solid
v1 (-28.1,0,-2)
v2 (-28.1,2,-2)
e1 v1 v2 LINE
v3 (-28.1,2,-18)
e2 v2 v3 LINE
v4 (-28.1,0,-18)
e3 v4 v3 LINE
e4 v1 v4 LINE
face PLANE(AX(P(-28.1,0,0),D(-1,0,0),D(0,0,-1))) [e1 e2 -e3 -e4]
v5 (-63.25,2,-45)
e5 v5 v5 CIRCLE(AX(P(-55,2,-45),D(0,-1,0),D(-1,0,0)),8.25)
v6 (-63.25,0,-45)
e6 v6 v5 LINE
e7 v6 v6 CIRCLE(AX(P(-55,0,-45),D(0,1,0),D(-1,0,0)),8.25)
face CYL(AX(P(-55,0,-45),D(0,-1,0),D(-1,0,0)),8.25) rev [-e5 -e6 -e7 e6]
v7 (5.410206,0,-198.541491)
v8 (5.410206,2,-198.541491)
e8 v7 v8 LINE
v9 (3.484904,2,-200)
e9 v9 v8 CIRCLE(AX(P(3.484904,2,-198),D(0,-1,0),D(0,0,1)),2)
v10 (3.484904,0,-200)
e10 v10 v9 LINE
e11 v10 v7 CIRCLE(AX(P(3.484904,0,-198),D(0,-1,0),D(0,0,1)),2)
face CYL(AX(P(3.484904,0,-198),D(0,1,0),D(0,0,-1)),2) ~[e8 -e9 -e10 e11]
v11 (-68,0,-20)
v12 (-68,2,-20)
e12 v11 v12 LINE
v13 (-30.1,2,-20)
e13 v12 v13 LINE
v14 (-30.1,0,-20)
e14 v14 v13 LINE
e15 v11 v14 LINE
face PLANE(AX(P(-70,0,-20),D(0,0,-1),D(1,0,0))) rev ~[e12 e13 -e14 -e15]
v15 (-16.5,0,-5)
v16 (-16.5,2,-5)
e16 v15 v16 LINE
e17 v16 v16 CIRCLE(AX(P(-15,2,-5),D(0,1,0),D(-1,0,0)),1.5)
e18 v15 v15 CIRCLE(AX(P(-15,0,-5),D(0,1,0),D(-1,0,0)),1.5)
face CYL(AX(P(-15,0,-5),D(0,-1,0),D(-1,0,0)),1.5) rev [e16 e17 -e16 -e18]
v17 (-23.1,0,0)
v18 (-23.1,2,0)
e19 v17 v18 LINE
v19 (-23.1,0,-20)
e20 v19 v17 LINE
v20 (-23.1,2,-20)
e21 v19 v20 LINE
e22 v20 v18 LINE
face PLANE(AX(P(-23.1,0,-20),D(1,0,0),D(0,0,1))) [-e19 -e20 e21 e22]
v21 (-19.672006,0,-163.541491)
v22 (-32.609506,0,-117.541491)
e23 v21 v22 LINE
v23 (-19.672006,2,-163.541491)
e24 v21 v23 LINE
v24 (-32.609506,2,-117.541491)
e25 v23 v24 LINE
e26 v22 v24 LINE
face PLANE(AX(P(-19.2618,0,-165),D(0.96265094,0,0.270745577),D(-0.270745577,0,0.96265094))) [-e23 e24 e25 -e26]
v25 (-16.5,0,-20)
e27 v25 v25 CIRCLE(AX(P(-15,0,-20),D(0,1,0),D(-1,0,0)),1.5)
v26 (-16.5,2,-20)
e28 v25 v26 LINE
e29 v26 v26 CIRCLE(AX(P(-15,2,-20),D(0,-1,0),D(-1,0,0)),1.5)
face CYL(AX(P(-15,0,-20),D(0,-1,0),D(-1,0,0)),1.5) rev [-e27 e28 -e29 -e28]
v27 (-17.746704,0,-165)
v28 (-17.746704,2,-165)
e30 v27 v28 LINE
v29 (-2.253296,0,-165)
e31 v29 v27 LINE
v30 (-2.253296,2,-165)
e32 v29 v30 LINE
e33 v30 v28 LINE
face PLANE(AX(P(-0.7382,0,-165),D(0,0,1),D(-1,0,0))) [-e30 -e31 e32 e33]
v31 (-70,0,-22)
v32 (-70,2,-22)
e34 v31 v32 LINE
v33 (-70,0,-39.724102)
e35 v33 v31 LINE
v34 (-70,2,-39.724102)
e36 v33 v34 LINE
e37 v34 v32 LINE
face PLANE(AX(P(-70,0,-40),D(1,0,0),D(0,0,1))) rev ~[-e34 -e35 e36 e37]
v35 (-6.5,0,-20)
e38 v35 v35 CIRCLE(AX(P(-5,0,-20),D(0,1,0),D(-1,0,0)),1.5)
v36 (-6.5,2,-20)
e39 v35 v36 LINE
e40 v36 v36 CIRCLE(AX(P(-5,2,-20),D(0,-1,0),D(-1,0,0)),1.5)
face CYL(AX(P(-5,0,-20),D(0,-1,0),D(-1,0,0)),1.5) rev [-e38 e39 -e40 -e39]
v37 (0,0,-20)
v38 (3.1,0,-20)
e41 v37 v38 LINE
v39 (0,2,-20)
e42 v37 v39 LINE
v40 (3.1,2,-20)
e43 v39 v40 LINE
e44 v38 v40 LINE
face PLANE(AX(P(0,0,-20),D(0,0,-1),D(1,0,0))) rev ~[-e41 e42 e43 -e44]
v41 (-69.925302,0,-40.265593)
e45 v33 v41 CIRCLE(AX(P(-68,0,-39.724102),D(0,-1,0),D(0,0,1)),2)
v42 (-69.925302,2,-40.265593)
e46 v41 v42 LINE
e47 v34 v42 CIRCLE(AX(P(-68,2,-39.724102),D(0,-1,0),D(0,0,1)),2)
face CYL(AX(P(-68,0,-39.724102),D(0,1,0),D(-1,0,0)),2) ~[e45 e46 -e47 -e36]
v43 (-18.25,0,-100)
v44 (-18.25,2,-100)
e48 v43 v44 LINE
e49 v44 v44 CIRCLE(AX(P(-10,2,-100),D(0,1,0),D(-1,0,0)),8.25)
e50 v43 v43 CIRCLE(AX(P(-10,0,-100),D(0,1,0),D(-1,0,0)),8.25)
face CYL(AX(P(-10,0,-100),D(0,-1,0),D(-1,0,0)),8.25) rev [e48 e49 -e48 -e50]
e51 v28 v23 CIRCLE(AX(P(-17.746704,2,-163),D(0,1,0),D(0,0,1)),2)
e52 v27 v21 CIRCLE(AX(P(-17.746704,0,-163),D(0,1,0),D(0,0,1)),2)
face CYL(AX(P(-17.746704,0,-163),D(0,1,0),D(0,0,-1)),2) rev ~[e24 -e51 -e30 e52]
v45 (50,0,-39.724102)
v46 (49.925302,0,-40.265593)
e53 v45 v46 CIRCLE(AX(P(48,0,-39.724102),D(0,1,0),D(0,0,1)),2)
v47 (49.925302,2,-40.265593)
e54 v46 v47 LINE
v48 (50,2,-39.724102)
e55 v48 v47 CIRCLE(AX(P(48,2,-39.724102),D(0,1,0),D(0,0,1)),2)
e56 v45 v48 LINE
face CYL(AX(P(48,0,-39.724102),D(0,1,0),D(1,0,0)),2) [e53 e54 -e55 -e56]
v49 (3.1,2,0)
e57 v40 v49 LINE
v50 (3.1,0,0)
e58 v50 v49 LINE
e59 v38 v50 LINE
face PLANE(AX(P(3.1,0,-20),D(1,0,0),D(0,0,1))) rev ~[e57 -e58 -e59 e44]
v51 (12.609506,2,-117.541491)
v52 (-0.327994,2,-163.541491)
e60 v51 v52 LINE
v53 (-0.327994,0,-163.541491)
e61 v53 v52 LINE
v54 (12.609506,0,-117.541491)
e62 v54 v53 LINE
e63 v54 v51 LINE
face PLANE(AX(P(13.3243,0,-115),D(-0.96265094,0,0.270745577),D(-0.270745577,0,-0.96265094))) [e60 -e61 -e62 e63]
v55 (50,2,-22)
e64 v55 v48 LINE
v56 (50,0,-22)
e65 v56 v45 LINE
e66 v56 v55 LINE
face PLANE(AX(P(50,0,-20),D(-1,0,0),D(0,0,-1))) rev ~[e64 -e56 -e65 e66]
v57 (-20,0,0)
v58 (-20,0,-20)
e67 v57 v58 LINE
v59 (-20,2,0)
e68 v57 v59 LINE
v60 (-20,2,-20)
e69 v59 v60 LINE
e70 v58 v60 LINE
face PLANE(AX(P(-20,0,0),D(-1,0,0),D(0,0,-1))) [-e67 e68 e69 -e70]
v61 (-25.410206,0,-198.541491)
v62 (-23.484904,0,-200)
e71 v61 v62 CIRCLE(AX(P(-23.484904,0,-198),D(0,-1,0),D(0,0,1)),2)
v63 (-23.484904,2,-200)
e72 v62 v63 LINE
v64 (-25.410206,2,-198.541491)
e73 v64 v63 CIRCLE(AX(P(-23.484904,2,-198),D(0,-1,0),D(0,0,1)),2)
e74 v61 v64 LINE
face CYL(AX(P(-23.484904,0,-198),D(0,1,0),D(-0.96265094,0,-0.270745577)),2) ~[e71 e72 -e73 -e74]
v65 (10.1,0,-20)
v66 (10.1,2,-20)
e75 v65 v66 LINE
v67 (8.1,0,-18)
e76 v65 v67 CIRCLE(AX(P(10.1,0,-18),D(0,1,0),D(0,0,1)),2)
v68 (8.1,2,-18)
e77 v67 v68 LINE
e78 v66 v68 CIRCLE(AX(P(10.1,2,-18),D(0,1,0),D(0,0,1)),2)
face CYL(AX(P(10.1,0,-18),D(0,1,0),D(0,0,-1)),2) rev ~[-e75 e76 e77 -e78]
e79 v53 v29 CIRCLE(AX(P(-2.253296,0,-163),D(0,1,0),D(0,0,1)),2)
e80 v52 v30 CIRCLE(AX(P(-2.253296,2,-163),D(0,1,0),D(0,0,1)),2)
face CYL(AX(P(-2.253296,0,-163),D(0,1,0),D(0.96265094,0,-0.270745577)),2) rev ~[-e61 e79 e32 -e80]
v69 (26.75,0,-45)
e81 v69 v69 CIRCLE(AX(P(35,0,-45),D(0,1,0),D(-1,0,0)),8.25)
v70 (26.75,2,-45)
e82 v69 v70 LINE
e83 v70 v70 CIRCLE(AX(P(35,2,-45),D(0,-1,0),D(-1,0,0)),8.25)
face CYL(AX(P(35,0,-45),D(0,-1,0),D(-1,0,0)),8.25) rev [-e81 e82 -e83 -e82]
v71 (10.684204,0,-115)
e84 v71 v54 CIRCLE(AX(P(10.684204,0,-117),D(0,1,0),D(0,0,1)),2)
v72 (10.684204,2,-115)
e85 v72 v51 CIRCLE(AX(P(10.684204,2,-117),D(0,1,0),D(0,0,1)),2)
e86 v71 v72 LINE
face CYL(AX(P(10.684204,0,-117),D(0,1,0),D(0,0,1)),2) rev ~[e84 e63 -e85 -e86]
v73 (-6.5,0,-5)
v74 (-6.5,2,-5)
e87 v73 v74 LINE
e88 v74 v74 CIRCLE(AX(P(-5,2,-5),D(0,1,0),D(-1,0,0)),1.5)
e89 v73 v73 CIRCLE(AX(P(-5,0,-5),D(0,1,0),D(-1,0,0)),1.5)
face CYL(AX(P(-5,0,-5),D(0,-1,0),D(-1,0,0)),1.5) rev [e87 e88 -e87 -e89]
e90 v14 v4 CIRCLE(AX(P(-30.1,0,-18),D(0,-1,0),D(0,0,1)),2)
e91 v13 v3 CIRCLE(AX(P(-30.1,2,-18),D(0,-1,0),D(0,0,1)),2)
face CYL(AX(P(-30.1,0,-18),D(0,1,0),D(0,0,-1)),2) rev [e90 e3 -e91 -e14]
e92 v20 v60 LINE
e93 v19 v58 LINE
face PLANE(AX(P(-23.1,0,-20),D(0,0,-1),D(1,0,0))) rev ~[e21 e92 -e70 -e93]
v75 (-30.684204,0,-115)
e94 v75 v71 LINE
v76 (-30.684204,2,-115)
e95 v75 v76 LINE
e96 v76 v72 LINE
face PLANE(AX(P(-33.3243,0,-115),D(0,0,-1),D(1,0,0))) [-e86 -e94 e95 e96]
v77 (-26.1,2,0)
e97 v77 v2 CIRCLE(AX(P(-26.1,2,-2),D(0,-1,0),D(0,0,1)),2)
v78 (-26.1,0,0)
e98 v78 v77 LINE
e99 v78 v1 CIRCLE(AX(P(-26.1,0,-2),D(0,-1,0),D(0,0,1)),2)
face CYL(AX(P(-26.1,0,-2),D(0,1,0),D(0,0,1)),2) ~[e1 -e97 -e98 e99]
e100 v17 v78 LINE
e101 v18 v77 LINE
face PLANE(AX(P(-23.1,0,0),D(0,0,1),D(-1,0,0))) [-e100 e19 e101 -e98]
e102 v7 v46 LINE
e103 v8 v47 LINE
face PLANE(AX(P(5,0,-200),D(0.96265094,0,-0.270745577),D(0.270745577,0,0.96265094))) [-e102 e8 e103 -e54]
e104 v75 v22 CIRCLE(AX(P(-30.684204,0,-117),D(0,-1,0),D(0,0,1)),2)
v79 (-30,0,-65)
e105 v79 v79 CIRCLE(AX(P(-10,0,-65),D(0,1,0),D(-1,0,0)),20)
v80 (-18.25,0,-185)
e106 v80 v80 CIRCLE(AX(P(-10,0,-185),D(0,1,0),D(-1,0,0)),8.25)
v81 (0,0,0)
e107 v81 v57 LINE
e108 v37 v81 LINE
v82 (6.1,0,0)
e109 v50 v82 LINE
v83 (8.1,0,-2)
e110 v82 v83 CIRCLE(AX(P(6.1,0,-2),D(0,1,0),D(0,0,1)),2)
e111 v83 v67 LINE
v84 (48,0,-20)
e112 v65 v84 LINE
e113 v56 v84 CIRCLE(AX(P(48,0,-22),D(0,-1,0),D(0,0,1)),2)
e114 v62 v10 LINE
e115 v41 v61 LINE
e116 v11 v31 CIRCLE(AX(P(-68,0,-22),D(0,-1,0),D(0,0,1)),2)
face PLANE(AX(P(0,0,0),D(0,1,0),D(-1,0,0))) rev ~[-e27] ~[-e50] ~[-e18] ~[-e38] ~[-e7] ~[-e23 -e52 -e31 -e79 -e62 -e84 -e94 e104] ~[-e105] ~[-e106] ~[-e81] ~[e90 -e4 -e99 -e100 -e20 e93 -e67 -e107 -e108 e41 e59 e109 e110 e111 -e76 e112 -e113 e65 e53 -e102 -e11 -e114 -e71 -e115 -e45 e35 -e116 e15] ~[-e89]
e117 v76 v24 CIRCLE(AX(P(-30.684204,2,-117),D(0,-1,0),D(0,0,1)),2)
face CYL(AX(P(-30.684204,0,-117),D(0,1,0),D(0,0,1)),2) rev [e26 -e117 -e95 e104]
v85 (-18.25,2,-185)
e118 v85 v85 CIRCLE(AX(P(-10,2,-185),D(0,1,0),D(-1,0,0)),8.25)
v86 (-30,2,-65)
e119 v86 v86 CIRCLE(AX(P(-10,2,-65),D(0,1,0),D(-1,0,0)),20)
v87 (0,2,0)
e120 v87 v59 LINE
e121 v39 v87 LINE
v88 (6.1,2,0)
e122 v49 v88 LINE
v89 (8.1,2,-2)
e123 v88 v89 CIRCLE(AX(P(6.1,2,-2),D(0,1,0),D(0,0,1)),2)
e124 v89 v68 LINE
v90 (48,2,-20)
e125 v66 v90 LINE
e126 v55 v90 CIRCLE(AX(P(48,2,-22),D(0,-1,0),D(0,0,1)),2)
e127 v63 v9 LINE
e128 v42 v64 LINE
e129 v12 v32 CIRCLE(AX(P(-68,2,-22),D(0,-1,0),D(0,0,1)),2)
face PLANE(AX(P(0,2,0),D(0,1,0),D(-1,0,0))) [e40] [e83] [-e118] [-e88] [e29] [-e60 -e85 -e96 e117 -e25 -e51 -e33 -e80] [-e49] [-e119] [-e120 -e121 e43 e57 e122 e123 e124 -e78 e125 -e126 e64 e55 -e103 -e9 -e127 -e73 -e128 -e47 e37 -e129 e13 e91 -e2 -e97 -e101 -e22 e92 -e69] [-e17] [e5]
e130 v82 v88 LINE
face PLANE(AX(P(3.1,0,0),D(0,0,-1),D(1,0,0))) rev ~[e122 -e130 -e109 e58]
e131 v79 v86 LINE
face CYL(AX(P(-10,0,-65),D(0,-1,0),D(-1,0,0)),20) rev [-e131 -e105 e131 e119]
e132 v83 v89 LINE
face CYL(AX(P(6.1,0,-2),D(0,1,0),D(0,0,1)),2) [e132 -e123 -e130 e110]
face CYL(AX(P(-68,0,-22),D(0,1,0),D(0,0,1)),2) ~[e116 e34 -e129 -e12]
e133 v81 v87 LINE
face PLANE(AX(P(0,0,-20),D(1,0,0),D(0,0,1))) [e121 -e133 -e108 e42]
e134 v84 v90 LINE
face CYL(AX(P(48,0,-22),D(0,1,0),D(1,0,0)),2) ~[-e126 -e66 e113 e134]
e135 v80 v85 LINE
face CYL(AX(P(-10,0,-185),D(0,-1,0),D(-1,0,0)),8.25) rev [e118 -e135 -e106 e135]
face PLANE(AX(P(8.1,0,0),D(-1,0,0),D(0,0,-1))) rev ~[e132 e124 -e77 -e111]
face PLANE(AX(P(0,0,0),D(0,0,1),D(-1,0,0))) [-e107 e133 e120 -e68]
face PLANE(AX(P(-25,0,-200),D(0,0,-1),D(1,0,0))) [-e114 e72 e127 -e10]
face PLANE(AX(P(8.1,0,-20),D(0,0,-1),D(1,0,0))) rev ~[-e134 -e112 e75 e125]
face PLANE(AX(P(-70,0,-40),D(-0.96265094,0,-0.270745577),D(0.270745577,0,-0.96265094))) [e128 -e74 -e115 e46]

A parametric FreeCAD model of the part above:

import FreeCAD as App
import Part
import Sketcher


def edges_at(feature, points):
    """Names of the edges that pass closest to the given points."""
    edges = feature.Shape.Edges
    near = lambda p: min(range(len(edges)), key=lambda i: edges[i].distToShape(Part.Vertex(*p))[0])
    return sorted({f"Edge{near(p) + 1}" for p in points})

doc = App.newDocument("Part")
body = doc.addObject("PartDesign::Body", "Body")

# Sketch on XZ plane
sketch1 = body.newObject("Sketcher::SketchObject", "Sketch")
sketch1.AttachmentSupport = (doc.getObject("XZ_Plane"), [""])
sketch1.MapMode = "FlatFace"
sketch1.addGeometry([
    Part.LineSegment(App.Vector(-20, 0, 0), App.Vector(0, 0, 0)),  # 0
    Part.LineSegment(App.Vector(0, 0, 0), App.Vector(0, -20, 0)),  # 1
    Part.LineSegment(App.Vector(0, -20, 0), App.Vector(3.1, -20, 0)),  # 2
    Part.LineSegment(App.Vector(3.1, -20, 0), App.Vector(3.1, 0, 0)),  # 3
    Part.LineSegment(App.Vector(3.1, 0, 0), App.Vector(8.1, 0, 0)),  # 4
    Part.LineSegment(App.Vector(8.1, 0, 0), App.Vector(8.1, -20, 0)),  # 5
    Part.LineSegment(App.Vector(8.1, -20, 0), App.Vector(50, -20, 0)),  # 6
    Part.LineSegment(App.Vector(50, -20, 0), App.Vector(50, -40, 0)),  # 7
    Part.LineSegment(App.Vector(50, -40, 0), App.Vector(5, -200, 0)),  # 8
    Part.LineSegment(App.Vector(5, -200, 0), App.Vector(-25, -200, 0)),  # 9
    Part.LineSegment(App.Vector(-25, -200, 0), App.Vector(-70, -40, 0)),  # 10
    Part.LineSegment(App.Vector(-70, -40, 0), App.Vector(-70, -20, 0)),  # 11
    Part.LineSegment(App.Vector(-70, -20, 0), App.Vector(-28.1, -20, 0)),  # 12
    Part.LineSegment(App.Vector(-28.1, -20, 0), App.Vector(-28.1, 0, 0)),  # 13
    Part.LineSegment(App.Vector(-28.1, 0, 0), App.Vector(-23.1, 0, 0)),  # 14
    Part.LineSegment(App.Vector(-23.1, 0, 0), App.Vector(-23.1, -20, 0)),  # 15
    Part.LineSegment(App.Vector(-23.1, -20, 0), App.Vector(-20, -20, 0)),  # 16
    Part.LineSegment(App.Vector(-20, -20, 0), App.Vector(-20, 0, 0)),  # 17
    Part.Circle(App.Vector(-15, -20, 0), App.Vector(0, 0, 1), 1.5),  # 18
    Part.Circle(App.Vector(-5, -20, 0), App.Vector(0, 0, 1), 1.5),  # 19
    Part.Circle(App.Vector(-5, -5, 0), App.Vector(0, 0, 1), 1.5),  # 20
    Part.Circle(App.Vector(-15, -5, 0), App.Vector(0, 0, 1), 1.5),  # 21
    Part.Circle(App.Vector(-55, -45, 0), App.Vector(0, 0, 1), 8.25),  # 22
    Part.Circle(App.Vector(35, -45, 0), App.Vector(0, 0, 1), 8.25),  # 23
    Part.LineSegment(App.Vector(-33.3243, -115, 0), App.Vector(-19.2618, -165, 0)),  # 24
    Part.LineSegment(App.Vector(-19.2618, -165, 0), App.Vector(-0.7382, -165, 0)),  # 25
    Part.LineSegment(App.Vector(-0.7382, -165, 0), App.Vector(13.3243, -115, 0)),  # 26
    Part.LineSegment(App.Vector(13.3243, -115, 0), App.Vector(-33.3243, -115, 0)),  # 27
    Part.Circle(App.Vector(-10, -100, 0), App.Vector(0, 0, 1), 8.25),  # 28
    Part.Circle(App.Vector(-10, -65, 0), App.Vector(0, 0, 1), 20),  # 29
    Part.Circle(App.Vector(-10, -185, 0), App.Vector(0, 0, 1), 8.25),  # 30
], False)
sketch1.addConstraint([
    Sketcher.Constraint("Coincident", 0, 2, 1, 1),
    Sketcher.Constraint("Coincident", 1, 2, 2, 1),
    Sketcher.Constraint("Coincident", 2, 2, 3, 1),
    Sketcher.Constraint("Coincident", 3, 2, 4, 1),
    Sketcher.Constraint("Coincident", 4, 2, 5, 1),
    Sketcher.Constraint("Coincident", 5, 2, 6, 1),
    Sketcher.Constraint("Coincident", 6, 2, 7, 1),
    Sketcher.Constraint("Coincident", 7, 2, 8, 1),
    Sketcher.Constraint("Coincident", 8, 2, 9, 1),
    Sketcher.Constraint("Coincident", 9, 2, 10, 1),
    Sketcher.Constraint("Coincident", 10, 2, 11, 1),
    Sketcher.Constraint("Coincident", 11, 2, 12, 1),
    Sketcher.Constraint("Coincident", 12, 2, 13, 1),
    Sketcher.Constraint("Coincident", 13, 2, 14, 1),
    Sketcher.Constraint("Coincident", 14, 2, 15, 1),
    Sketcher.Constraint("Coincident", 15, 2, 16, 1),
    Sketcher.Constraint("Coincident", 16, 2, 17, 1),
    Sketcher.Constraint("Coincident", 17, 2, 0, 1),
    Sketcher.Constraint("Coincident", 24, 2, 25, 1),
    Sketcher.Constraint("Coincident", 25, 2, 26, 1),
    Sketcher.Constraint("Coincident", 26, 2, 27, 1),
    Sketcher.Constraint("Coincident", 27, 2, 24, 1),
    Sketcher.Constraint("Horizontal", 0),
    Sketcher.Constraint("Vertical", 1),
    Sketcher.Constraint("Horizontal", 2),
    Sketcher.Constraint("Vertical", 3),
    Sketcher.Constraint("Horizontal", 4),
    Sketcher.Constraint("Vertical", 5),
    Sketcher.Constraint("Horizontal", 6),
    Sketcher.Constraint("Vertical", 7),
    Sketcher.Constraint("Horizontal", 9),
    Sketcher.Constraint("Vertical", 11),
    Sketcher.Constraint("Horizontal", 12),
    Sketcher.Constraint("Vertical", 13),
    Sketcher.Constraint("Horizontal", 14),
    Sketcher.Constraint("Vertical", 15),
    Sketcher.Constraint("Horizontal", 16),
    Sketcher.Constraint("Vertical", 17),
    Sketcher.Constraint("Horizontal", 25),
    Sketcher.Constraint("Horizontal", 27),
    Sketcher.Constraint("Coincident", 0, 2, -1, 1),
    Sketcher.Constraint("Equal", 18, 19),
    Sketcher.Constraint("Equal", 19, 20),
    Sketcher.Constraint("Equal", 20, 21),
    Sketcher.Constraint("Equal", 22, 23),
    Sketcher.Constraint("Equal", 23, 28),
    Sketcher.Constraint("Equal", 28, 30),
    Sketcher.Constraint("PointOnObject", 3, 2, -1),
    Sketcher.Constraint("PointOnObject", 13, 2, -1),
    Sketcher.Constraint("Parallel", 10, 24),
    Sketcher.Constraint("Parallel", 8, 26),
    Sketcher.Constraint("Horizontal", 18, 3, 19, 3),
    Sketcher.Constraint("Horizontal", 20, 3, 21, 3),
    Sketcher.Constraint("Horizontal", 22, 3, 23, 3),
    Sketcher.Constraint("Horizontal", 19, 3, 1, 2),
    Sketcher.Constraint("Horizontal", 2, 2, 5, 2),
    Sketcher.Constraint("Horizontal", 7, 2, 10, 2),
    Sketcher.Constraint("Horizontal", 6, 2, 11, 2),
    Sketcher.Constraint("Horizontal", 12, 2, 15, 2),
    Sketcher.Constraint("Vertical", 19, 3, 20, 3),
    Sketcher.Constraint("Vertical", 18, 3, 21, 3),
    Sketcher.Constraint("Vertical", 28, 3, 29, 3),
    Sketcher.Constraint("Vertical", 29, 3, 30, 3),
    Sketcher.Constraint("Equal", 6, 12),
    Sketcher.Constraint("Equal", 4, 14),
    Sketcher.Constraint("Equal", 2, 16),
    Sketcher.Constraint("Equal", 0, 1),
    Sketcher.Constraint("Equal", 5, 7),
    Sketcher.Constraint("Equal", 8, 10),
    Sketcher.Constraint("Diameter", 18, 3.0),
    Sketcher.Constraint("Diameter", 29, 40.0),
    Sketcher.Constraint("Diameter", 22, 16.5),
    Sketcher.Constraint("DistanceX", 0, 1, 0, 2, 20.0),
    Sketcher.Constraint("DistanceX", 4, 1, 4, 2, 5.0),
    Sketcher.Constraint("DistanceX", 2, 1, 2, 2, 3.1),
    Sketcher.Constraint("DistanceX", 18, 3, -1, 1, 15.0),
    Sketcher.Constraint("DistanceX", 19, 3, -1, 1, 5.0),
    Sketcher.Constraint("DistanceY", 20, 3, -1, 1, 5.0),
    Sketcher.Constraint("DistanceY", 22, 3, -1, 1, 45.0),
    Sketcher.Constraint("DistanceX", -1, 1, 23, 3, 35.0),
    Sketcher.Constraint("DistanceY", 28, 3, -1, 1, 100.0),
    Sketcher.Constraint("DistanceX", -1, 1, 8, 2, 5.0),
    Sketcher.Constraint("DistanceY", 8, 2, -1, 1, 200.0),
    Sketcher.Constraint("DistanceX", 22, 3, 18, 3, 40.0),
    Sketcher.Constraint("DistanceX", 22, 3, 28, 3, 45.0),
    Sketcher.Constraint("DistanceY", 28, 3, 29, 3, 35.0),
    Sketcher.Constraint("DistanceY", 30, 3, 29, 3, 120.0),
    Sketcher.Constraint("DistanceX", 23, 3, 6, 2, 15.0),
    Sketcher.Constraint("DistanceY", 30, 3, 24, 2, 20.0),
    Sketcher.Constraint("DistanceY", 26, 2, 28, 3, 15.0),
    Sketcher.Constraint("DistanceX", 25, 1, 25, 2, 18.5236),
    Sketcher.Constraint("DistanceX", 24, 2, -1, 1, 19.2618),
])
pad1 = body.newObject("PartDesign::Pad", "Pad")
pad1.Profile = sketch1
pad1.Length = 2
pad1.Reversed = True
doc.recompute()

fillet = body.newObject("PartDesign::Fillet", "Fillet")
fillet.Base = (pad1, edges_at(pad1, [
    (-70, 1, -20),
    (50, 1, -20),
    (-25, 1, -200),
    (5, 1, -200),
    (-28.1, 1, 0),
    (8.1, 1, 0),
    (-28.1, 1, -20),
    (8.1, 1, -20),
    (50, 1, -40),
    (-70, 1, -40),
    (-33.324, 1, -115),
    (13.324, 1, -115),
    (-0.738, 1, -165),
    (-19.262, 1, -165),
]))
fillet.Radius = 2

doc.recompute()
